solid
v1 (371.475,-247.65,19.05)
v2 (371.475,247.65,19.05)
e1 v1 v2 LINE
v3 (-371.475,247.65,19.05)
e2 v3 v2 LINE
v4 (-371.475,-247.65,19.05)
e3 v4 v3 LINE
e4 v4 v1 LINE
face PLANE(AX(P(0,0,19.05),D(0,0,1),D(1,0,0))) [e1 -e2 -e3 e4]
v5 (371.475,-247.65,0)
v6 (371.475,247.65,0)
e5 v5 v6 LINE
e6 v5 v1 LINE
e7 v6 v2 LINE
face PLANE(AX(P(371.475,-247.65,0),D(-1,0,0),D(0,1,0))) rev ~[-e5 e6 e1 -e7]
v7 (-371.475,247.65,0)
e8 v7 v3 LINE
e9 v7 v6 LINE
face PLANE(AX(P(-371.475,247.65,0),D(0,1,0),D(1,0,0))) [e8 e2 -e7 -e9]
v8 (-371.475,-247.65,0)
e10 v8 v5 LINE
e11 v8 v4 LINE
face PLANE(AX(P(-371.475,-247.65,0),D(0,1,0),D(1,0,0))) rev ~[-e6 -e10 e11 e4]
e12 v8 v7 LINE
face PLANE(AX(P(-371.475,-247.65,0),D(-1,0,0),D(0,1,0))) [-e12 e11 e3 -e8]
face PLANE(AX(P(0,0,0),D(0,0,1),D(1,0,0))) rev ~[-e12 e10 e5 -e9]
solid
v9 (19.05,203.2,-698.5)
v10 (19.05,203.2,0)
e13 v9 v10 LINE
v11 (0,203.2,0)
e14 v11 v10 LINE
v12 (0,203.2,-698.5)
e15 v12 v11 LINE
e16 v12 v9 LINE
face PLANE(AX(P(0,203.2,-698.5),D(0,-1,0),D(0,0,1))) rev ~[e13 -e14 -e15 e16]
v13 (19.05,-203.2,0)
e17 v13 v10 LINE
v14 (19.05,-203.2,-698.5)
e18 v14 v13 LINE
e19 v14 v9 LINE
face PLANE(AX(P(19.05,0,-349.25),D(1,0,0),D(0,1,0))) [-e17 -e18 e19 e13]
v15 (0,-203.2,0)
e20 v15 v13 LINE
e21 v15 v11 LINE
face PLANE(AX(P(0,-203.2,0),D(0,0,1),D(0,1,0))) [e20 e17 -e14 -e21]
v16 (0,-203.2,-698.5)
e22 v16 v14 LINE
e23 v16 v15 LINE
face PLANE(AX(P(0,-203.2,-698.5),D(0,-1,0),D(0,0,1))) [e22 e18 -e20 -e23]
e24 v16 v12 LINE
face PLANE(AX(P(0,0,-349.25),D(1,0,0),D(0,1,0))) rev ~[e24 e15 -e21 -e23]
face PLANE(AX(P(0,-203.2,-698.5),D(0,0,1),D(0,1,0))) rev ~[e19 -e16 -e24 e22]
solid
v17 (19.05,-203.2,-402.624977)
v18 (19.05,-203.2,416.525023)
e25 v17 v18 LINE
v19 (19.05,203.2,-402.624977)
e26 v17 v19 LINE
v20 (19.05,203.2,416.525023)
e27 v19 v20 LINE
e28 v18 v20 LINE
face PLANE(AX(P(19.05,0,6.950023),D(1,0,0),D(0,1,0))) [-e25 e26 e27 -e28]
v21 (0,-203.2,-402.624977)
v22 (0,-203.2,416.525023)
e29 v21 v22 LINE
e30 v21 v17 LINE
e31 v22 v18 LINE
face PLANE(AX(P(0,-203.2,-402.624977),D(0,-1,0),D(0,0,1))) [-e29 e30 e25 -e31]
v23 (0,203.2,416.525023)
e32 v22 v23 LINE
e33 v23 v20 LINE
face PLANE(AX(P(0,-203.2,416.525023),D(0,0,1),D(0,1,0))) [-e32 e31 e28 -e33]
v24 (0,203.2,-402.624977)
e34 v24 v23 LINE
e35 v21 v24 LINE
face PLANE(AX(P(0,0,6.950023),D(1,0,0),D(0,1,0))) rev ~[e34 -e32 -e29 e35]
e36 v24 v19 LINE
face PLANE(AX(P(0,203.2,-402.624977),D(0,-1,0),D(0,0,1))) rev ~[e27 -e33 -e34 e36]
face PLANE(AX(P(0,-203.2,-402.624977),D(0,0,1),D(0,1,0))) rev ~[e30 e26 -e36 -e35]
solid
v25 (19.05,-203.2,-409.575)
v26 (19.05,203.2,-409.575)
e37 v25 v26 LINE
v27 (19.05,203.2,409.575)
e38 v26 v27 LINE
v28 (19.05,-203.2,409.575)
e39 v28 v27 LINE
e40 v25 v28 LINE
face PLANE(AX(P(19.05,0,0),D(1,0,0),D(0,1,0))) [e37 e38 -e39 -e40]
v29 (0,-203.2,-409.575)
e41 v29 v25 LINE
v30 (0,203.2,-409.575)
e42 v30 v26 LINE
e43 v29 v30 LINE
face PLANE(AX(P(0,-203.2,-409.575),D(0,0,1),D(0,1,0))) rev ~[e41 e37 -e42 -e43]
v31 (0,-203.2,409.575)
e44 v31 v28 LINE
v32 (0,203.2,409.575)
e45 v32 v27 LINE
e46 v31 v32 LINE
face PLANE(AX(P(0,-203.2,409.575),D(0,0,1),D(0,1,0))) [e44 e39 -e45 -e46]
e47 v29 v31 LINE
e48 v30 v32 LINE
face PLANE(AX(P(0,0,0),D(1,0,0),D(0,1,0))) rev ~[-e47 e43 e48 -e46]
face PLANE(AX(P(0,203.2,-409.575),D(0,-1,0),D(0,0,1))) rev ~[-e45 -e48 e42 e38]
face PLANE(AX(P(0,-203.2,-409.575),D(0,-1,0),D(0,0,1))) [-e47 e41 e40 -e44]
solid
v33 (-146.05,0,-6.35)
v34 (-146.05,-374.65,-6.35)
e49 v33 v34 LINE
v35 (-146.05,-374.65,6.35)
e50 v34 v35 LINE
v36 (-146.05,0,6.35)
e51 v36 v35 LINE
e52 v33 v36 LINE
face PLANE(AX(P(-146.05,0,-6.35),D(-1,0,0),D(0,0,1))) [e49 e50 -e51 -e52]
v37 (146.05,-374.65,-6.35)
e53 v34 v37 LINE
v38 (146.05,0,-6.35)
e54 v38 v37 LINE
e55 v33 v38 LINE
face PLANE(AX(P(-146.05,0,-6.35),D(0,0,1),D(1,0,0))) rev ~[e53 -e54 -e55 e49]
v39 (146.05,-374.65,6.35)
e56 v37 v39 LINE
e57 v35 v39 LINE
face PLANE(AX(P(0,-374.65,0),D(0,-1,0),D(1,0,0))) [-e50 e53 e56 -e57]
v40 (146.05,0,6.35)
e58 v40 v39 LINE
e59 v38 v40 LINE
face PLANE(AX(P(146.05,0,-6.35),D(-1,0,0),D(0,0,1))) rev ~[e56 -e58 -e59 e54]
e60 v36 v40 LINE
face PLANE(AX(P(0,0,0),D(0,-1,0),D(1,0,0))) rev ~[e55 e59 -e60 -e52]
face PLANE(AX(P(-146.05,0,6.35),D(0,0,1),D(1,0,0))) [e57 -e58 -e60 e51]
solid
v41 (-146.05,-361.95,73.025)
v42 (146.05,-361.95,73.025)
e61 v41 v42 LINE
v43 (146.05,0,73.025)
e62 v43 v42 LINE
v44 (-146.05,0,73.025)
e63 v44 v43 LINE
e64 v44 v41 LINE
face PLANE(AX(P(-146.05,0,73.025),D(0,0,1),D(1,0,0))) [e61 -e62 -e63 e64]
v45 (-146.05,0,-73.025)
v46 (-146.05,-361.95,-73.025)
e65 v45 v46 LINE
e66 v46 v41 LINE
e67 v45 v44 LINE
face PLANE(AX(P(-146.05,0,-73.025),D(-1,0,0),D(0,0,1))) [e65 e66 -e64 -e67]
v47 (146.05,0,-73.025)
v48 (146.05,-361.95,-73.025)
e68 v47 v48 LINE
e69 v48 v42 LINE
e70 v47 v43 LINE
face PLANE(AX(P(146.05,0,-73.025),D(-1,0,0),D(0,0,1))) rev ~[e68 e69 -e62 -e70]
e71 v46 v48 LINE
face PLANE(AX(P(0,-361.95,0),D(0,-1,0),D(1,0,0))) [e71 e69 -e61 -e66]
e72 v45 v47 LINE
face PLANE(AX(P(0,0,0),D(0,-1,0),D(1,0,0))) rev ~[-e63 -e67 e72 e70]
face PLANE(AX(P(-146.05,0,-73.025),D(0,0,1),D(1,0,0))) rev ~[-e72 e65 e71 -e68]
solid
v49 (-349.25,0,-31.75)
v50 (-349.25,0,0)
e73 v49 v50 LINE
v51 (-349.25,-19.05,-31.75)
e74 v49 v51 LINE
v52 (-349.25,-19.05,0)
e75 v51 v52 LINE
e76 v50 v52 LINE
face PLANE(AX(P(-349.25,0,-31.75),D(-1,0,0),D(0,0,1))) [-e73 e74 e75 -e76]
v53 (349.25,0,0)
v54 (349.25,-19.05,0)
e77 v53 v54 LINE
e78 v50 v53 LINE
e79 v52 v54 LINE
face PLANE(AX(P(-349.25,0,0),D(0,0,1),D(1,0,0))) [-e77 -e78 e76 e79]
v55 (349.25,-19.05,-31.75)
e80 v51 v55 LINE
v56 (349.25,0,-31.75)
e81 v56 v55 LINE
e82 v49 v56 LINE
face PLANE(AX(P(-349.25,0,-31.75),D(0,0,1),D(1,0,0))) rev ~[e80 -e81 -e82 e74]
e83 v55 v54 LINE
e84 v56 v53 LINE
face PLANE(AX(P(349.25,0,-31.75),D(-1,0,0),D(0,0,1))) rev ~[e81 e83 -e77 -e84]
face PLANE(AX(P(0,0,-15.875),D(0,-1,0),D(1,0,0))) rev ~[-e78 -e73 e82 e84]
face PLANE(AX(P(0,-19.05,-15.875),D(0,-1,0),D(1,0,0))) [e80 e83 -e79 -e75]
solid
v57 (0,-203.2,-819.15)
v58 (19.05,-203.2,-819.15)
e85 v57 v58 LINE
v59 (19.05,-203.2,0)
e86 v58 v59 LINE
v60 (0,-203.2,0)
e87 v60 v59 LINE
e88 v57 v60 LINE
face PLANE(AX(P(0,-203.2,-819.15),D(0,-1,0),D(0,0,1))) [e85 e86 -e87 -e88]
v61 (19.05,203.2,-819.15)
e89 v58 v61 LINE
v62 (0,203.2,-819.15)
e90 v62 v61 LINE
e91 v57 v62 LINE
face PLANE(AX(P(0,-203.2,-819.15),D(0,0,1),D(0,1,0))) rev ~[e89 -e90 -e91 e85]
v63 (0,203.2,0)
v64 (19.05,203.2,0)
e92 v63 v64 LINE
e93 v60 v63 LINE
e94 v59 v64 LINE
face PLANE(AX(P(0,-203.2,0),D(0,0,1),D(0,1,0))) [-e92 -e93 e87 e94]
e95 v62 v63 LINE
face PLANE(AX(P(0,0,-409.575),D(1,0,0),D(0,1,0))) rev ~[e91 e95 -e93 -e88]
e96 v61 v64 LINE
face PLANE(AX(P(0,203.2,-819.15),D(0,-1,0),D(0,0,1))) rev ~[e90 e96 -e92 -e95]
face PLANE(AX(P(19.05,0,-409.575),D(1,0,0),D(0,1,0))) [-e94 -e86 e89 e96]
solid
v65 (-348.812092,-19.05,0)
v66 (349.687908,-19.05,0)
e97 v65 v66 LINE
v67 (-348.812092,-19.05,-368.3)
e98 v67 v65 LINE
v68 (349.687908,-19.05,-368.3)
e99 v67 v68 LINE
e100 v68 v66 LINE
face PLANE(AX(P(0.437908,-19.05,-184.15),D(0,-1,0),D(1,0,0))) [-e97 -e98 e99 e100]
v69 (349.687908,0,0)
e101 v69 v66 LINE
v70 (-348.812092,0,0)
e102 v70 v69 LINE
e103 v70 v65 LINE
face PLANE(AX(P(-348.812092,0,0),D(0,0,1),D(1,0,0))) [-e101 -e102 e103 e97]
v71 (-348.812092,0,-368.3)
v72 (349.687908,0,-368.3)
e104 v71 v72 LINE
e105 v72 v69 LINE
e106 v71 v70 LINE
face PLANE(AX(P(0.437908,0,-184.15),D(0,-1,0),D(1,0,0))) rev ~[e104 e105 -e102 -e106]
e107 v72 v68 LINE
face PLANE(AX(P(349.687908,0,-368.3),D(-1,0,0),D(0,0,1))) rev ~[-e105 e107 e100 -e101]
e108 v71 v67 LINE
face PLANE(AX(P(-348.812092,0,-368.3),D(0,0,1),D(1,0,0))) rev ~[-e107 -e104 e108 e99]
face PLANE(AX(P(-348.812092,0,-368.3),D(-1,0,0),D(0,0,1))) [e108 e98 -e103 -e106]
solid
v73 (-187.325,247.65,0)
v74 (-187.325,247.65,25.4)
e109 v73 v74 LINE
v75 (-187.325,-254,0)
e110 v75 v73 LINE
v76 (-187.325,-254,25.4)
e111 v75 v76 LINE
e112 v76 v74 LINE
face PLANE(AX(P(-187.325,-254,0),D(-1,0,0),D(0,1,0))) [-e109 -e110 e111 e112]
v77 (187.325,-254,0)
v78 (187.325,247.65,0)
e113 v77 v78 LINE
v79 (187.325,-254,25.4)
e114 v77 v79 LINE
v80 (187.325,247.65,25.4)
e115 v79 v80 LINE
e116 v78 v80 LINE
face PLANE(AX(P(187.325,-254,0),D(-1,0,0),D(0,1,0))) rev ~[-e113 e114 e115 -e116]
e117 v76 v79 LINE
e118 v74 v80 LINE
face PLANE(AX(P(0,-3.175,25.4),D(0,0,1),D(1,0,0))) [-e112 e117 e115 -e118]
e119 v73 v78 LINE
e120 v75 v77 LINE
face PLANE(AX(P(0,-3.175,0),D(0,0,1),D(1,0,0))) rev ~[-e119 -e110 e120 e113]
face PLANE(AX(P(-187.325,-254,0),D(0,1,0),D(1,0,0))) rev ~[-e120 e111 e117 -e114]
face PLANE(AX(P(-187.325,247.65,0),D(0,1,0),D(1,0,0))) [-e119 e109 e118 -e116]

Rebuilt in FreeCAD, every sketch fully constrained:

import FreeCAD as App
import Part
import Sketcher

V = App.Vector
Q = App.Units.Quantity

doc = App.newDocument("Part")
body = doc.addObject("PartDesign::Body", "Body")

# Sketch on XY plane
sketch1 = body.newObject("Sketcher::SketchObject", "Sketch")
sketch1.AttachmentSupport = (doc.getObject("XY_Plane"), [""])
sketch1.MapMode = "FlatFace"
sketch1.addGeometry([
    Part.LineSegment(V(-371, 248, 0), V(-371, -248, 0)),
    Part.LineSegment(V(-371, -248, 0), V(371, -248, 0)),
    Part.LineSegment(V(371, -248, 0), V(371, 248, 0)),
    Part.LineSegment(V(371, 248, 0), V(-371, 248, 0)),
], False)
sketch1.addConstraint([
    Sketcher.Constraint("Coincident", 0, 2, 1, 1),
    Sketcher.Constraint("Coincident", 1, 2, 2, 1),
    Sketcher.Constraint("Coincident", 2, 2, 3, 1),
    Sketcher.Constraint("Coincident", 3, 2, 0, 1),
    Sketcher.Constraint("Vertical", 0),
    Sketcher.Constraint("Horizontal", 1),
    Sketcher.Constraint("Vertical", 2),
    Sketcher.Constraint("Horizontal", 3),
    Sketcher.Constraint("Symmetric", 0, 2, 2, 2, -1, 1),
    Sketcher.Constraint("DistanceY", 0, 2, 0, 1, Q("19.5 in")),
    Sketcher.Constraint("DistanceX", 1, 1, 1, 2, Q("29.25 in")),
])
pad1 = body.newObject("PartDesign::Pad", "Pad")
pad1.Profile = sketch1
pad1.Length = Q("0.75 in")
body2 = doc.addObject("PartDesign::Body", "Body001")

# Sketch on XZ plane
sketch2 = body2.newObject("Sketcher::SketchObject", "Sketch001")
sketch2.AttachmentSupport = (doc.getObject("XZ_Plane001"), [""])
sketch2.MapMode = "FlatFace"
sketch2.addGeometry([
    Part.LineSegment(V(-349, 0, 0), V(-349, -32, 0)),
    Part.LineSegment(V(-349, -32, 0), V(349, -32, 0)),
    Part.LineSegment(V(349, -32, 0), V(349, 0, 0)),
    Part.LineSegment(V(349, 0, 0), V(-349, 0, 0)),
], False)
sketch2.addConstraint([
    Sketcher.Constraint("Coincident", 0, 2, 1, 1),
    Sketcher.Constraint("Coincident", 1, 2, 2, 1),
    Sketcher.Constraint("Coincident", 2, 2, 3, 1),
    Sketcher.Constraint("Coincident", 3, 2, 0, 1),
    Sketcher.Constraint("Vertical", 0),
    Sketcher.Constraint("Horizontal", 1),
    Sketcher.Constraint("Vertical", 2),
    Sketcher.Constraint("Horizontal", 3),
    Sketcher.Constraint("Symmetric", 2, 2, 3, 2, -1, 1),
    Sketcher.Constraint("DistanceX", 1, 1, 1, 2, Q("27.5 in")),
    Sketcher.Constraint("DistanceY", 0, 2, 0, 1, Q("1.25 in")),
])
pad2 = body2.newObject("PartDesign::Pad", "Pad001")
pad2.Profile = sketch2
pad2.Length = Q("0.75 in")
body3 = doc.addObject("PartDesign::Body", "Body002")

# Sketch on YZ plane
sketch3 = body3.newObject("Sketcher::SketchObject", "Sketch002")
sketch3.AttachmentSupport = (doc.getObject("YZ_Plane002"), [""])
sketch3.MapMode = "FlatFace"
sketch3.addGeometry([
    Part.LineSegment(V(-203, 0, 0), V(-203, -819, 0)),
    Part.LineSegment(V(-203, -819, 0), V(203, -819, 0)),
    Part.LineSegment(V(203, -819, 0), V(203, 0, 0)),
    Part.LineSegment(V(203, 0, 0), V(-203, 0, 0)),
], False)
sketch3.addConstraint([
    Sketcher.Constraint("Coincident", 0, 2, 1, 1),
    Sketcher.Constraint("Coincident", 1, 2, 2, 1),
    Sketcher.Constraint("Coincident", 2, 2, 3, 1),
    Sketcher.Constraint("Coincident", 3, 2, 0, 1),
    Sketcher.Constraint("Vertical", 0),
    Sketcher.Constraint("Horizontal", 1),
    Sketcher.Constraint("Vertical", 2),
    Sketcher.Constraint("Horizontal", 3),
    Sketcher.Constraint("Symmetric", 2, 2, 3, 2, -1, 1),
    Sketcher.Constraint("DistanceX", 1, 1, 1, 2, Q("16 in")),
    Sketcher.Constraint("DistanceY", 0, 2, 0, 1, Q("32.25 in")),
])
pad3 = body3.newObject("PartDesign::Pad", "Pad002")
pad3.Profile = sketch3
pad3.Length = Q("0.75 in")
body4 = doc.addObject("PartDesign::Body", "Body003")

# Sketch on YZ plane
sketch4 = body4.newObject("Sketcher::SketchObject", "Sketch003")
sketch4.AttachmentSupport = (doc.getObject("YZ_Plane003"), [""])
sketch4.MapMode = "FlatFace"
sketch4.addGeometry([
    Part.LineSegment(V(-203, 0, 0), V(-203, -698, 0)),
    Part.LineSegment(V(-203, -698, 0), V(203, -698, 0)),
    Part.LineSegment(V(203, -698, 0), V(203, 0, 0)),
    Part.LineSegment(V(203, 0, 0), V(-203, 0, 0)),
], False)
sketch4.addConstraint([
    Sketcher.Constraint("Coincident", 0, 2, 1, 1),
    Sketcher.Constraint("Coincident", 1, 2, 2, 1),
    Sketcher.Constraint("Coincident", 2, 2, 3, 1),
    Sketcher.Constraint("Coincident", 3, 2, 0, 1),
    Sketcher.Constraint("Vertical", 0),
    Sketcher.Constraint("Horizontal", 1),
    Sketcher.Constraint("Vertical", 2),
    Sketcher.Constraint("Horizontal", 3),
    Sketcher.Constraint("Symmetric", 2, 2, 3, 2, -1, 1),
    Sketcher.Constraint("DistanceX", 1, 1, 1, 2, Q("16 in")),
    Sketcher.Constraint("DistanceY", 0, 2, 0, 1, Q("27.5 in")),
])
pad4 = body4.newObject("PartDesign::Pad", "Pad003")
pad4.Profile = sketch4
pad4.Length = Q("0.75 in")
body5 = doc.addObject("PartDesign::Body", "Body004")

# Sketch on XZ plane
sketch5 = body5.newObject("Sketcher::SketchObject", "Sketch004")
sketch5.AttachmentSupport = (doc.getObject("XZ_Plane004"), [""])
sketch5.MapMode = "FlatFace"
sketch5.addGeometry([
    Part.LineSegment(V(-349, 0, 0), V(-349, -368, 0)),
    Part.LineSegment(V(-349, -368, 0), V(350, -368, 0)),
    Part.LineSegment(V(350, -368, 0), V(350, 0, 0)),
    Part.LineSegment(V(350, 0, 0), V(-349, 0, 0)),
], False)
sketch5.addConstraint([
    Sketcher.Constraint("Coincident", 0, 2, 1, 1),
    Sketcher.Constraint("Coincident", 1, 2, 2, 1),
    Sketcher.Constraint("Coincident", 2, 2, 3, 1),
    Sketcher.Constraint("Coincident", 3, 2, 0, 1),
    Sketcher.Constraint("Vertical", 0),
    Sketcher.Constraint("Horizontal", 1),
    Sketcher.Constraint("Vertical", 2),
    Sketcher.Constraint("Horizontal", 3),
    Sketcher.Constraint("PointOnObject", 2, 2, -1),
    Sketcher.Constraint("DistanceX", 1, 1, 1, 2, Q("27.5 in")),
    Sketcher.Constraint("DistanceY", 0, 2, 0, 1, Q("14.5 in")),
    Sketcher.Constraint("DistanceX", 0, 2, -1, 1, 348.812092),
])
pad5 = body5.newObject("PartDesign::Pad", "Pad004")
pad5.Profile = sketch5
pad5.Length = Q("0.75 in")
body6 = doc.addObject("PartDesign::Body", "Body005")

# Sketch on XY plane
sketch6 = body6.newObject("Sketcher::SketchObject", "Sketch005")
sketch6.AttachmentSupport = (doc.getObject("XY_Plane005"), [""])
sketch6.MapMode = "FlatFace"
sketch6.addGeometry([
    Part.LineSegment(V(-187, 248, 0), V(-187, -254, 0)),
    Part.LineSegment(V(-187, -254, 0), V(187, -254, 0)),
    Part.LineSegment(V(187, -254, 0), V(187, 248, 0)),
    Part.LineSegment(V(187, 248, 0), V(-187, 248, 0)),
], False)
sketch6.addConstraint([
    Sketcher.Constraint("Coincident", 0, 2, 1, 1),
    Sketcher.Constraint("Coincident", 1, 2, 2, 1),
    Sketcher.Constraint("Coincident", 2, 2, 3, 1),
    Sketcher.Constraint("Coincident", 3, 2, 0, 1),
    Sketcher.Constraint("Vertical", 0),
    Sketcher.Constraint("Horizontal", 1),
    Sketcher.Constraint("Vertical", 2),
    Sketcher.Constraint("Horizontal", 3),
    Sketcher.Constraint("DistanceY", 0, 2, -1, 1, Q("10 in")),
    Sketcher.Constraint("DistanceX", 1, 1, 1, 2, Q("14.75 in")),
    Sketcher.Constraint("DistanceY", 0, 2, 0, 1, Q("19.75 in")),
    Sketcher.Constraint("DistanceX", 0, 2, -1, 1, Q("7.375 in")),
])
pad6 = body6.newObject("PartDesign::Pad", "Pad005")
pad6.Profile = sketch6
pad6.Length = Q("1 in")
body7 = doc.addObject("PartDesign::Body", "Body006")

# Sketch on YZ plane
sketch7 = body7.newObject("Sketcher::SketchObject", "Sketch006")
sketch7.AttachmentSupport = (doc.getObject("YZ_Plane006"), [""])
sketch7.MapMode = "FlatFace"
sketch7.addGeometry([
    Part.LineSegment(V(-203, 417, 0), V(-203, -403, 0)),
    Part.LineSegment(V(-203, -403, 0), V(203, -403, 0)),
    Part.LineSegment(V(203, -403, 0), V(203, 417, 0)),
    Part.LineSegment(V(203, 417, 0), V(-203, 417, 0)),
], False)
sketch7.addConstraint([
    Sketcher.Constraint("Coincident", 0, 2, 1, 1),
    Sketcher.Constraint("Coincident", 1, 2, 2, 1),
    Sketcher.Constraint("Coincident", 2, 2, 3, 1),
    Sketcher.Constraint("Coincident", 3, 2, 0, 1),
    Sketcher.Constraint("Vertical", 0),
    Sketcher.Constraint("Horizontal", 1),
    Sketcher.Constraint("Vertical", 2),
    Sketcher.Constraint("Horizontal", 3),
    Sketcher.Constraint("DistanceX", 1, 1, 1, 2, Q("16 in")),
    Sketcher.Constraint("DistanceX", 0, 2, -1, 1, Q("8 in")),
    Sketcher.Constraint("DistanceY", 0, 2, 0, 1, Q("32.25 in")),
    Sketcher.Constraint("DistanceY", 0, 2, -1, 1, 402.624977),
])
pad7 = body7.newObject("PartDesign::Pad", "Pad006")
pad7.Profile = sketch7
pad7.Length = Q("0.75 in")
body8 = doc.addObject("PartDesign::Body", "Body007")

# Sketch on YZ plane
sketch8 = body8.newObject("Sketcher::SketchObject", "Sketch007")
sketch8.AttachmentSupport = (doc.getObject("YZ_Plane007"), [""])
sketch8.MapMode = "FlatFace"
sketch8.addGeometry([
    Part.LineSegment(V(-203, 410, 0), V(-203, -410, 0)),
    Part.LineSegment(V(-203, -410, 0), V(203, -410, 0)),
    Part.LineSegment(V(203, -410, 0), V(203, 410, 0)),
    Part.LineSegment(V(203, 410, 0), V(-203, 410, 0)),
], False)
sketch8.addConstraint([
    Sketcher.Constraint("Coincident", 0, 2, 1, 1),
    Sketcher.Constraint("Coincident", 1, 2, 2, 1),
    Sketcher.Constraint("Coincident", 2, 2, 3, 1),
    Sketcher.Constraint("Coincident", 3, 2, 0, 1),
    Sketcher.Constraint("Vertical", 0),
    Sketcher.Constraint("Horizontal", 1),
    Sketcher.Constraint("Vertical", 2),
    Sketcher.Constraint("Horizontal", 3),
    Sketcher.Constraint("Symmetric", 0, 2, 2, 2, -1, 1),
    Sketcher.Constraint("DistanceX", 1, 1, 1, 2, Q("16 in")),
    Sketcher.Constraint("DistanceY", 0, 2, 0, 1, Q("32.25 in")),
])
pad8 = body8.newObject("PartDesign::Pad", "Pad007")
pad8.Profile = sketch8
pad8.Length = Q("0.75 in")
body9 = doc.addObject("PartDesign::Body", "Body008")

# Sketch on XZ plane
sketch9 = body9.newObject("Sketcher::SketchObject", "Sketch008")
sketch9.AttachmentSupport = (doc.getObject("XZ_Plane008"), [""])
sketch9.MapMode = "FlatFace"
sketch9.addGeometry([
    Part.LineSegment(V(-146, 73, 0), V(-146, -73, 0)),
    Part.LineSegment(V(-146, -73, 0), V(146, -73, 0)),
    Part.LineSegment(V(146, -73, 0), V(146, 73, 0)),
    Part.LineSegment(V(146, 73, 0), V(-146, 73, 0)),
], False)
sketch9.addConstraint([
    Sketcher.Constraint("Coincident", 0, 2, 1, 1),
    Sketcher.Constraint("Coincident", 1, 2, 2, 1),
    Sketcher.Constraint("Coincident", 2, 2, 3, 1),
    Sketcher.Constraint("Coincident", 3, 2, 0, 1),
    Sketcher.Constraint("Vertical", 0),
    Sketcher.Constraint("Horizontal", 1),
    Sketcher.Constraint("Vertical", 2),
    Sketcher.Constraint("Horizontal", 3),
    Sketcher.Constraint("Symmetric", 0, 2, 2, 2, -1, 1),
    Sketcher.Constraint("DistanceX", 1, 1, 1, 2, Q("11.5 in")),
    Sketcher.Constraint("DistanceY", 0, 2, 0, 1, Q("5.75 in")),
])
pad9 = body9.newObject("PartDesign::Pad", "Pad008")
pad9.Profile = sketch9
pad9.Length = Q("14.25 in")
body10 = doc.addObject("PartDesign::Body", "Body009")

# Sketch on XZ plane
sketch10 = body10.newObject("Sketcher::SketchObject", "Sketch009")
sketch10.AttachmentSupport = (doc.getObject("XZ_Plane009"), [""])
sketch10.MapMode = "FlatFace"
sketch10.addGeometry([
    Part.LineSegment(V(-146, 6, 0), V(-146, -6, 0)),
    Part.LineSegment(V(-146, -6, 0), V(146, -6, 0)),
    Part.LineSegment(V(146, -6, 0), V(146, 6, 0)),
    Part.LineSegment(V(146, 6, 0), V(-146, 6, 0)),
], False)
sketch10.addConstraint([
    Sketcher.Constraint("Coincident", 0, 2, 1, 1),
    Sketcher.Constraint("Coincident", 1, 2, 2, 1),
    Sketcher.Constraint("Coincident", 2, 2, 3, 1),
    Sketcher.Constraint("Coincident", 3, 2, 0, 1),
    Sketcher.Constraint("Vertical", 0),
    Sketcher.Constraint("Horizontal", 1),
    Sketcher.Constraint("Vertical", 2),
    Sketcher.Constraint("Horizontal", 3),
    Sketcher.Constraint("Symmetric", 0, 2, 2, 2, -1, 1),
    Sketcher.Constraint("DistanceX", 1, 1, 1, 2, Q("11.5 in")),
    Sketcher.Constraint("DistanceY", 0, 2, 0, 1, Q("0.5 in")),
])
pad10 = body10.newObject("PartDesign::Pad", "Pad009")
pad10.Profile = sketch10
pad10.Length = Q("14.75 in")

doc.recompute()
